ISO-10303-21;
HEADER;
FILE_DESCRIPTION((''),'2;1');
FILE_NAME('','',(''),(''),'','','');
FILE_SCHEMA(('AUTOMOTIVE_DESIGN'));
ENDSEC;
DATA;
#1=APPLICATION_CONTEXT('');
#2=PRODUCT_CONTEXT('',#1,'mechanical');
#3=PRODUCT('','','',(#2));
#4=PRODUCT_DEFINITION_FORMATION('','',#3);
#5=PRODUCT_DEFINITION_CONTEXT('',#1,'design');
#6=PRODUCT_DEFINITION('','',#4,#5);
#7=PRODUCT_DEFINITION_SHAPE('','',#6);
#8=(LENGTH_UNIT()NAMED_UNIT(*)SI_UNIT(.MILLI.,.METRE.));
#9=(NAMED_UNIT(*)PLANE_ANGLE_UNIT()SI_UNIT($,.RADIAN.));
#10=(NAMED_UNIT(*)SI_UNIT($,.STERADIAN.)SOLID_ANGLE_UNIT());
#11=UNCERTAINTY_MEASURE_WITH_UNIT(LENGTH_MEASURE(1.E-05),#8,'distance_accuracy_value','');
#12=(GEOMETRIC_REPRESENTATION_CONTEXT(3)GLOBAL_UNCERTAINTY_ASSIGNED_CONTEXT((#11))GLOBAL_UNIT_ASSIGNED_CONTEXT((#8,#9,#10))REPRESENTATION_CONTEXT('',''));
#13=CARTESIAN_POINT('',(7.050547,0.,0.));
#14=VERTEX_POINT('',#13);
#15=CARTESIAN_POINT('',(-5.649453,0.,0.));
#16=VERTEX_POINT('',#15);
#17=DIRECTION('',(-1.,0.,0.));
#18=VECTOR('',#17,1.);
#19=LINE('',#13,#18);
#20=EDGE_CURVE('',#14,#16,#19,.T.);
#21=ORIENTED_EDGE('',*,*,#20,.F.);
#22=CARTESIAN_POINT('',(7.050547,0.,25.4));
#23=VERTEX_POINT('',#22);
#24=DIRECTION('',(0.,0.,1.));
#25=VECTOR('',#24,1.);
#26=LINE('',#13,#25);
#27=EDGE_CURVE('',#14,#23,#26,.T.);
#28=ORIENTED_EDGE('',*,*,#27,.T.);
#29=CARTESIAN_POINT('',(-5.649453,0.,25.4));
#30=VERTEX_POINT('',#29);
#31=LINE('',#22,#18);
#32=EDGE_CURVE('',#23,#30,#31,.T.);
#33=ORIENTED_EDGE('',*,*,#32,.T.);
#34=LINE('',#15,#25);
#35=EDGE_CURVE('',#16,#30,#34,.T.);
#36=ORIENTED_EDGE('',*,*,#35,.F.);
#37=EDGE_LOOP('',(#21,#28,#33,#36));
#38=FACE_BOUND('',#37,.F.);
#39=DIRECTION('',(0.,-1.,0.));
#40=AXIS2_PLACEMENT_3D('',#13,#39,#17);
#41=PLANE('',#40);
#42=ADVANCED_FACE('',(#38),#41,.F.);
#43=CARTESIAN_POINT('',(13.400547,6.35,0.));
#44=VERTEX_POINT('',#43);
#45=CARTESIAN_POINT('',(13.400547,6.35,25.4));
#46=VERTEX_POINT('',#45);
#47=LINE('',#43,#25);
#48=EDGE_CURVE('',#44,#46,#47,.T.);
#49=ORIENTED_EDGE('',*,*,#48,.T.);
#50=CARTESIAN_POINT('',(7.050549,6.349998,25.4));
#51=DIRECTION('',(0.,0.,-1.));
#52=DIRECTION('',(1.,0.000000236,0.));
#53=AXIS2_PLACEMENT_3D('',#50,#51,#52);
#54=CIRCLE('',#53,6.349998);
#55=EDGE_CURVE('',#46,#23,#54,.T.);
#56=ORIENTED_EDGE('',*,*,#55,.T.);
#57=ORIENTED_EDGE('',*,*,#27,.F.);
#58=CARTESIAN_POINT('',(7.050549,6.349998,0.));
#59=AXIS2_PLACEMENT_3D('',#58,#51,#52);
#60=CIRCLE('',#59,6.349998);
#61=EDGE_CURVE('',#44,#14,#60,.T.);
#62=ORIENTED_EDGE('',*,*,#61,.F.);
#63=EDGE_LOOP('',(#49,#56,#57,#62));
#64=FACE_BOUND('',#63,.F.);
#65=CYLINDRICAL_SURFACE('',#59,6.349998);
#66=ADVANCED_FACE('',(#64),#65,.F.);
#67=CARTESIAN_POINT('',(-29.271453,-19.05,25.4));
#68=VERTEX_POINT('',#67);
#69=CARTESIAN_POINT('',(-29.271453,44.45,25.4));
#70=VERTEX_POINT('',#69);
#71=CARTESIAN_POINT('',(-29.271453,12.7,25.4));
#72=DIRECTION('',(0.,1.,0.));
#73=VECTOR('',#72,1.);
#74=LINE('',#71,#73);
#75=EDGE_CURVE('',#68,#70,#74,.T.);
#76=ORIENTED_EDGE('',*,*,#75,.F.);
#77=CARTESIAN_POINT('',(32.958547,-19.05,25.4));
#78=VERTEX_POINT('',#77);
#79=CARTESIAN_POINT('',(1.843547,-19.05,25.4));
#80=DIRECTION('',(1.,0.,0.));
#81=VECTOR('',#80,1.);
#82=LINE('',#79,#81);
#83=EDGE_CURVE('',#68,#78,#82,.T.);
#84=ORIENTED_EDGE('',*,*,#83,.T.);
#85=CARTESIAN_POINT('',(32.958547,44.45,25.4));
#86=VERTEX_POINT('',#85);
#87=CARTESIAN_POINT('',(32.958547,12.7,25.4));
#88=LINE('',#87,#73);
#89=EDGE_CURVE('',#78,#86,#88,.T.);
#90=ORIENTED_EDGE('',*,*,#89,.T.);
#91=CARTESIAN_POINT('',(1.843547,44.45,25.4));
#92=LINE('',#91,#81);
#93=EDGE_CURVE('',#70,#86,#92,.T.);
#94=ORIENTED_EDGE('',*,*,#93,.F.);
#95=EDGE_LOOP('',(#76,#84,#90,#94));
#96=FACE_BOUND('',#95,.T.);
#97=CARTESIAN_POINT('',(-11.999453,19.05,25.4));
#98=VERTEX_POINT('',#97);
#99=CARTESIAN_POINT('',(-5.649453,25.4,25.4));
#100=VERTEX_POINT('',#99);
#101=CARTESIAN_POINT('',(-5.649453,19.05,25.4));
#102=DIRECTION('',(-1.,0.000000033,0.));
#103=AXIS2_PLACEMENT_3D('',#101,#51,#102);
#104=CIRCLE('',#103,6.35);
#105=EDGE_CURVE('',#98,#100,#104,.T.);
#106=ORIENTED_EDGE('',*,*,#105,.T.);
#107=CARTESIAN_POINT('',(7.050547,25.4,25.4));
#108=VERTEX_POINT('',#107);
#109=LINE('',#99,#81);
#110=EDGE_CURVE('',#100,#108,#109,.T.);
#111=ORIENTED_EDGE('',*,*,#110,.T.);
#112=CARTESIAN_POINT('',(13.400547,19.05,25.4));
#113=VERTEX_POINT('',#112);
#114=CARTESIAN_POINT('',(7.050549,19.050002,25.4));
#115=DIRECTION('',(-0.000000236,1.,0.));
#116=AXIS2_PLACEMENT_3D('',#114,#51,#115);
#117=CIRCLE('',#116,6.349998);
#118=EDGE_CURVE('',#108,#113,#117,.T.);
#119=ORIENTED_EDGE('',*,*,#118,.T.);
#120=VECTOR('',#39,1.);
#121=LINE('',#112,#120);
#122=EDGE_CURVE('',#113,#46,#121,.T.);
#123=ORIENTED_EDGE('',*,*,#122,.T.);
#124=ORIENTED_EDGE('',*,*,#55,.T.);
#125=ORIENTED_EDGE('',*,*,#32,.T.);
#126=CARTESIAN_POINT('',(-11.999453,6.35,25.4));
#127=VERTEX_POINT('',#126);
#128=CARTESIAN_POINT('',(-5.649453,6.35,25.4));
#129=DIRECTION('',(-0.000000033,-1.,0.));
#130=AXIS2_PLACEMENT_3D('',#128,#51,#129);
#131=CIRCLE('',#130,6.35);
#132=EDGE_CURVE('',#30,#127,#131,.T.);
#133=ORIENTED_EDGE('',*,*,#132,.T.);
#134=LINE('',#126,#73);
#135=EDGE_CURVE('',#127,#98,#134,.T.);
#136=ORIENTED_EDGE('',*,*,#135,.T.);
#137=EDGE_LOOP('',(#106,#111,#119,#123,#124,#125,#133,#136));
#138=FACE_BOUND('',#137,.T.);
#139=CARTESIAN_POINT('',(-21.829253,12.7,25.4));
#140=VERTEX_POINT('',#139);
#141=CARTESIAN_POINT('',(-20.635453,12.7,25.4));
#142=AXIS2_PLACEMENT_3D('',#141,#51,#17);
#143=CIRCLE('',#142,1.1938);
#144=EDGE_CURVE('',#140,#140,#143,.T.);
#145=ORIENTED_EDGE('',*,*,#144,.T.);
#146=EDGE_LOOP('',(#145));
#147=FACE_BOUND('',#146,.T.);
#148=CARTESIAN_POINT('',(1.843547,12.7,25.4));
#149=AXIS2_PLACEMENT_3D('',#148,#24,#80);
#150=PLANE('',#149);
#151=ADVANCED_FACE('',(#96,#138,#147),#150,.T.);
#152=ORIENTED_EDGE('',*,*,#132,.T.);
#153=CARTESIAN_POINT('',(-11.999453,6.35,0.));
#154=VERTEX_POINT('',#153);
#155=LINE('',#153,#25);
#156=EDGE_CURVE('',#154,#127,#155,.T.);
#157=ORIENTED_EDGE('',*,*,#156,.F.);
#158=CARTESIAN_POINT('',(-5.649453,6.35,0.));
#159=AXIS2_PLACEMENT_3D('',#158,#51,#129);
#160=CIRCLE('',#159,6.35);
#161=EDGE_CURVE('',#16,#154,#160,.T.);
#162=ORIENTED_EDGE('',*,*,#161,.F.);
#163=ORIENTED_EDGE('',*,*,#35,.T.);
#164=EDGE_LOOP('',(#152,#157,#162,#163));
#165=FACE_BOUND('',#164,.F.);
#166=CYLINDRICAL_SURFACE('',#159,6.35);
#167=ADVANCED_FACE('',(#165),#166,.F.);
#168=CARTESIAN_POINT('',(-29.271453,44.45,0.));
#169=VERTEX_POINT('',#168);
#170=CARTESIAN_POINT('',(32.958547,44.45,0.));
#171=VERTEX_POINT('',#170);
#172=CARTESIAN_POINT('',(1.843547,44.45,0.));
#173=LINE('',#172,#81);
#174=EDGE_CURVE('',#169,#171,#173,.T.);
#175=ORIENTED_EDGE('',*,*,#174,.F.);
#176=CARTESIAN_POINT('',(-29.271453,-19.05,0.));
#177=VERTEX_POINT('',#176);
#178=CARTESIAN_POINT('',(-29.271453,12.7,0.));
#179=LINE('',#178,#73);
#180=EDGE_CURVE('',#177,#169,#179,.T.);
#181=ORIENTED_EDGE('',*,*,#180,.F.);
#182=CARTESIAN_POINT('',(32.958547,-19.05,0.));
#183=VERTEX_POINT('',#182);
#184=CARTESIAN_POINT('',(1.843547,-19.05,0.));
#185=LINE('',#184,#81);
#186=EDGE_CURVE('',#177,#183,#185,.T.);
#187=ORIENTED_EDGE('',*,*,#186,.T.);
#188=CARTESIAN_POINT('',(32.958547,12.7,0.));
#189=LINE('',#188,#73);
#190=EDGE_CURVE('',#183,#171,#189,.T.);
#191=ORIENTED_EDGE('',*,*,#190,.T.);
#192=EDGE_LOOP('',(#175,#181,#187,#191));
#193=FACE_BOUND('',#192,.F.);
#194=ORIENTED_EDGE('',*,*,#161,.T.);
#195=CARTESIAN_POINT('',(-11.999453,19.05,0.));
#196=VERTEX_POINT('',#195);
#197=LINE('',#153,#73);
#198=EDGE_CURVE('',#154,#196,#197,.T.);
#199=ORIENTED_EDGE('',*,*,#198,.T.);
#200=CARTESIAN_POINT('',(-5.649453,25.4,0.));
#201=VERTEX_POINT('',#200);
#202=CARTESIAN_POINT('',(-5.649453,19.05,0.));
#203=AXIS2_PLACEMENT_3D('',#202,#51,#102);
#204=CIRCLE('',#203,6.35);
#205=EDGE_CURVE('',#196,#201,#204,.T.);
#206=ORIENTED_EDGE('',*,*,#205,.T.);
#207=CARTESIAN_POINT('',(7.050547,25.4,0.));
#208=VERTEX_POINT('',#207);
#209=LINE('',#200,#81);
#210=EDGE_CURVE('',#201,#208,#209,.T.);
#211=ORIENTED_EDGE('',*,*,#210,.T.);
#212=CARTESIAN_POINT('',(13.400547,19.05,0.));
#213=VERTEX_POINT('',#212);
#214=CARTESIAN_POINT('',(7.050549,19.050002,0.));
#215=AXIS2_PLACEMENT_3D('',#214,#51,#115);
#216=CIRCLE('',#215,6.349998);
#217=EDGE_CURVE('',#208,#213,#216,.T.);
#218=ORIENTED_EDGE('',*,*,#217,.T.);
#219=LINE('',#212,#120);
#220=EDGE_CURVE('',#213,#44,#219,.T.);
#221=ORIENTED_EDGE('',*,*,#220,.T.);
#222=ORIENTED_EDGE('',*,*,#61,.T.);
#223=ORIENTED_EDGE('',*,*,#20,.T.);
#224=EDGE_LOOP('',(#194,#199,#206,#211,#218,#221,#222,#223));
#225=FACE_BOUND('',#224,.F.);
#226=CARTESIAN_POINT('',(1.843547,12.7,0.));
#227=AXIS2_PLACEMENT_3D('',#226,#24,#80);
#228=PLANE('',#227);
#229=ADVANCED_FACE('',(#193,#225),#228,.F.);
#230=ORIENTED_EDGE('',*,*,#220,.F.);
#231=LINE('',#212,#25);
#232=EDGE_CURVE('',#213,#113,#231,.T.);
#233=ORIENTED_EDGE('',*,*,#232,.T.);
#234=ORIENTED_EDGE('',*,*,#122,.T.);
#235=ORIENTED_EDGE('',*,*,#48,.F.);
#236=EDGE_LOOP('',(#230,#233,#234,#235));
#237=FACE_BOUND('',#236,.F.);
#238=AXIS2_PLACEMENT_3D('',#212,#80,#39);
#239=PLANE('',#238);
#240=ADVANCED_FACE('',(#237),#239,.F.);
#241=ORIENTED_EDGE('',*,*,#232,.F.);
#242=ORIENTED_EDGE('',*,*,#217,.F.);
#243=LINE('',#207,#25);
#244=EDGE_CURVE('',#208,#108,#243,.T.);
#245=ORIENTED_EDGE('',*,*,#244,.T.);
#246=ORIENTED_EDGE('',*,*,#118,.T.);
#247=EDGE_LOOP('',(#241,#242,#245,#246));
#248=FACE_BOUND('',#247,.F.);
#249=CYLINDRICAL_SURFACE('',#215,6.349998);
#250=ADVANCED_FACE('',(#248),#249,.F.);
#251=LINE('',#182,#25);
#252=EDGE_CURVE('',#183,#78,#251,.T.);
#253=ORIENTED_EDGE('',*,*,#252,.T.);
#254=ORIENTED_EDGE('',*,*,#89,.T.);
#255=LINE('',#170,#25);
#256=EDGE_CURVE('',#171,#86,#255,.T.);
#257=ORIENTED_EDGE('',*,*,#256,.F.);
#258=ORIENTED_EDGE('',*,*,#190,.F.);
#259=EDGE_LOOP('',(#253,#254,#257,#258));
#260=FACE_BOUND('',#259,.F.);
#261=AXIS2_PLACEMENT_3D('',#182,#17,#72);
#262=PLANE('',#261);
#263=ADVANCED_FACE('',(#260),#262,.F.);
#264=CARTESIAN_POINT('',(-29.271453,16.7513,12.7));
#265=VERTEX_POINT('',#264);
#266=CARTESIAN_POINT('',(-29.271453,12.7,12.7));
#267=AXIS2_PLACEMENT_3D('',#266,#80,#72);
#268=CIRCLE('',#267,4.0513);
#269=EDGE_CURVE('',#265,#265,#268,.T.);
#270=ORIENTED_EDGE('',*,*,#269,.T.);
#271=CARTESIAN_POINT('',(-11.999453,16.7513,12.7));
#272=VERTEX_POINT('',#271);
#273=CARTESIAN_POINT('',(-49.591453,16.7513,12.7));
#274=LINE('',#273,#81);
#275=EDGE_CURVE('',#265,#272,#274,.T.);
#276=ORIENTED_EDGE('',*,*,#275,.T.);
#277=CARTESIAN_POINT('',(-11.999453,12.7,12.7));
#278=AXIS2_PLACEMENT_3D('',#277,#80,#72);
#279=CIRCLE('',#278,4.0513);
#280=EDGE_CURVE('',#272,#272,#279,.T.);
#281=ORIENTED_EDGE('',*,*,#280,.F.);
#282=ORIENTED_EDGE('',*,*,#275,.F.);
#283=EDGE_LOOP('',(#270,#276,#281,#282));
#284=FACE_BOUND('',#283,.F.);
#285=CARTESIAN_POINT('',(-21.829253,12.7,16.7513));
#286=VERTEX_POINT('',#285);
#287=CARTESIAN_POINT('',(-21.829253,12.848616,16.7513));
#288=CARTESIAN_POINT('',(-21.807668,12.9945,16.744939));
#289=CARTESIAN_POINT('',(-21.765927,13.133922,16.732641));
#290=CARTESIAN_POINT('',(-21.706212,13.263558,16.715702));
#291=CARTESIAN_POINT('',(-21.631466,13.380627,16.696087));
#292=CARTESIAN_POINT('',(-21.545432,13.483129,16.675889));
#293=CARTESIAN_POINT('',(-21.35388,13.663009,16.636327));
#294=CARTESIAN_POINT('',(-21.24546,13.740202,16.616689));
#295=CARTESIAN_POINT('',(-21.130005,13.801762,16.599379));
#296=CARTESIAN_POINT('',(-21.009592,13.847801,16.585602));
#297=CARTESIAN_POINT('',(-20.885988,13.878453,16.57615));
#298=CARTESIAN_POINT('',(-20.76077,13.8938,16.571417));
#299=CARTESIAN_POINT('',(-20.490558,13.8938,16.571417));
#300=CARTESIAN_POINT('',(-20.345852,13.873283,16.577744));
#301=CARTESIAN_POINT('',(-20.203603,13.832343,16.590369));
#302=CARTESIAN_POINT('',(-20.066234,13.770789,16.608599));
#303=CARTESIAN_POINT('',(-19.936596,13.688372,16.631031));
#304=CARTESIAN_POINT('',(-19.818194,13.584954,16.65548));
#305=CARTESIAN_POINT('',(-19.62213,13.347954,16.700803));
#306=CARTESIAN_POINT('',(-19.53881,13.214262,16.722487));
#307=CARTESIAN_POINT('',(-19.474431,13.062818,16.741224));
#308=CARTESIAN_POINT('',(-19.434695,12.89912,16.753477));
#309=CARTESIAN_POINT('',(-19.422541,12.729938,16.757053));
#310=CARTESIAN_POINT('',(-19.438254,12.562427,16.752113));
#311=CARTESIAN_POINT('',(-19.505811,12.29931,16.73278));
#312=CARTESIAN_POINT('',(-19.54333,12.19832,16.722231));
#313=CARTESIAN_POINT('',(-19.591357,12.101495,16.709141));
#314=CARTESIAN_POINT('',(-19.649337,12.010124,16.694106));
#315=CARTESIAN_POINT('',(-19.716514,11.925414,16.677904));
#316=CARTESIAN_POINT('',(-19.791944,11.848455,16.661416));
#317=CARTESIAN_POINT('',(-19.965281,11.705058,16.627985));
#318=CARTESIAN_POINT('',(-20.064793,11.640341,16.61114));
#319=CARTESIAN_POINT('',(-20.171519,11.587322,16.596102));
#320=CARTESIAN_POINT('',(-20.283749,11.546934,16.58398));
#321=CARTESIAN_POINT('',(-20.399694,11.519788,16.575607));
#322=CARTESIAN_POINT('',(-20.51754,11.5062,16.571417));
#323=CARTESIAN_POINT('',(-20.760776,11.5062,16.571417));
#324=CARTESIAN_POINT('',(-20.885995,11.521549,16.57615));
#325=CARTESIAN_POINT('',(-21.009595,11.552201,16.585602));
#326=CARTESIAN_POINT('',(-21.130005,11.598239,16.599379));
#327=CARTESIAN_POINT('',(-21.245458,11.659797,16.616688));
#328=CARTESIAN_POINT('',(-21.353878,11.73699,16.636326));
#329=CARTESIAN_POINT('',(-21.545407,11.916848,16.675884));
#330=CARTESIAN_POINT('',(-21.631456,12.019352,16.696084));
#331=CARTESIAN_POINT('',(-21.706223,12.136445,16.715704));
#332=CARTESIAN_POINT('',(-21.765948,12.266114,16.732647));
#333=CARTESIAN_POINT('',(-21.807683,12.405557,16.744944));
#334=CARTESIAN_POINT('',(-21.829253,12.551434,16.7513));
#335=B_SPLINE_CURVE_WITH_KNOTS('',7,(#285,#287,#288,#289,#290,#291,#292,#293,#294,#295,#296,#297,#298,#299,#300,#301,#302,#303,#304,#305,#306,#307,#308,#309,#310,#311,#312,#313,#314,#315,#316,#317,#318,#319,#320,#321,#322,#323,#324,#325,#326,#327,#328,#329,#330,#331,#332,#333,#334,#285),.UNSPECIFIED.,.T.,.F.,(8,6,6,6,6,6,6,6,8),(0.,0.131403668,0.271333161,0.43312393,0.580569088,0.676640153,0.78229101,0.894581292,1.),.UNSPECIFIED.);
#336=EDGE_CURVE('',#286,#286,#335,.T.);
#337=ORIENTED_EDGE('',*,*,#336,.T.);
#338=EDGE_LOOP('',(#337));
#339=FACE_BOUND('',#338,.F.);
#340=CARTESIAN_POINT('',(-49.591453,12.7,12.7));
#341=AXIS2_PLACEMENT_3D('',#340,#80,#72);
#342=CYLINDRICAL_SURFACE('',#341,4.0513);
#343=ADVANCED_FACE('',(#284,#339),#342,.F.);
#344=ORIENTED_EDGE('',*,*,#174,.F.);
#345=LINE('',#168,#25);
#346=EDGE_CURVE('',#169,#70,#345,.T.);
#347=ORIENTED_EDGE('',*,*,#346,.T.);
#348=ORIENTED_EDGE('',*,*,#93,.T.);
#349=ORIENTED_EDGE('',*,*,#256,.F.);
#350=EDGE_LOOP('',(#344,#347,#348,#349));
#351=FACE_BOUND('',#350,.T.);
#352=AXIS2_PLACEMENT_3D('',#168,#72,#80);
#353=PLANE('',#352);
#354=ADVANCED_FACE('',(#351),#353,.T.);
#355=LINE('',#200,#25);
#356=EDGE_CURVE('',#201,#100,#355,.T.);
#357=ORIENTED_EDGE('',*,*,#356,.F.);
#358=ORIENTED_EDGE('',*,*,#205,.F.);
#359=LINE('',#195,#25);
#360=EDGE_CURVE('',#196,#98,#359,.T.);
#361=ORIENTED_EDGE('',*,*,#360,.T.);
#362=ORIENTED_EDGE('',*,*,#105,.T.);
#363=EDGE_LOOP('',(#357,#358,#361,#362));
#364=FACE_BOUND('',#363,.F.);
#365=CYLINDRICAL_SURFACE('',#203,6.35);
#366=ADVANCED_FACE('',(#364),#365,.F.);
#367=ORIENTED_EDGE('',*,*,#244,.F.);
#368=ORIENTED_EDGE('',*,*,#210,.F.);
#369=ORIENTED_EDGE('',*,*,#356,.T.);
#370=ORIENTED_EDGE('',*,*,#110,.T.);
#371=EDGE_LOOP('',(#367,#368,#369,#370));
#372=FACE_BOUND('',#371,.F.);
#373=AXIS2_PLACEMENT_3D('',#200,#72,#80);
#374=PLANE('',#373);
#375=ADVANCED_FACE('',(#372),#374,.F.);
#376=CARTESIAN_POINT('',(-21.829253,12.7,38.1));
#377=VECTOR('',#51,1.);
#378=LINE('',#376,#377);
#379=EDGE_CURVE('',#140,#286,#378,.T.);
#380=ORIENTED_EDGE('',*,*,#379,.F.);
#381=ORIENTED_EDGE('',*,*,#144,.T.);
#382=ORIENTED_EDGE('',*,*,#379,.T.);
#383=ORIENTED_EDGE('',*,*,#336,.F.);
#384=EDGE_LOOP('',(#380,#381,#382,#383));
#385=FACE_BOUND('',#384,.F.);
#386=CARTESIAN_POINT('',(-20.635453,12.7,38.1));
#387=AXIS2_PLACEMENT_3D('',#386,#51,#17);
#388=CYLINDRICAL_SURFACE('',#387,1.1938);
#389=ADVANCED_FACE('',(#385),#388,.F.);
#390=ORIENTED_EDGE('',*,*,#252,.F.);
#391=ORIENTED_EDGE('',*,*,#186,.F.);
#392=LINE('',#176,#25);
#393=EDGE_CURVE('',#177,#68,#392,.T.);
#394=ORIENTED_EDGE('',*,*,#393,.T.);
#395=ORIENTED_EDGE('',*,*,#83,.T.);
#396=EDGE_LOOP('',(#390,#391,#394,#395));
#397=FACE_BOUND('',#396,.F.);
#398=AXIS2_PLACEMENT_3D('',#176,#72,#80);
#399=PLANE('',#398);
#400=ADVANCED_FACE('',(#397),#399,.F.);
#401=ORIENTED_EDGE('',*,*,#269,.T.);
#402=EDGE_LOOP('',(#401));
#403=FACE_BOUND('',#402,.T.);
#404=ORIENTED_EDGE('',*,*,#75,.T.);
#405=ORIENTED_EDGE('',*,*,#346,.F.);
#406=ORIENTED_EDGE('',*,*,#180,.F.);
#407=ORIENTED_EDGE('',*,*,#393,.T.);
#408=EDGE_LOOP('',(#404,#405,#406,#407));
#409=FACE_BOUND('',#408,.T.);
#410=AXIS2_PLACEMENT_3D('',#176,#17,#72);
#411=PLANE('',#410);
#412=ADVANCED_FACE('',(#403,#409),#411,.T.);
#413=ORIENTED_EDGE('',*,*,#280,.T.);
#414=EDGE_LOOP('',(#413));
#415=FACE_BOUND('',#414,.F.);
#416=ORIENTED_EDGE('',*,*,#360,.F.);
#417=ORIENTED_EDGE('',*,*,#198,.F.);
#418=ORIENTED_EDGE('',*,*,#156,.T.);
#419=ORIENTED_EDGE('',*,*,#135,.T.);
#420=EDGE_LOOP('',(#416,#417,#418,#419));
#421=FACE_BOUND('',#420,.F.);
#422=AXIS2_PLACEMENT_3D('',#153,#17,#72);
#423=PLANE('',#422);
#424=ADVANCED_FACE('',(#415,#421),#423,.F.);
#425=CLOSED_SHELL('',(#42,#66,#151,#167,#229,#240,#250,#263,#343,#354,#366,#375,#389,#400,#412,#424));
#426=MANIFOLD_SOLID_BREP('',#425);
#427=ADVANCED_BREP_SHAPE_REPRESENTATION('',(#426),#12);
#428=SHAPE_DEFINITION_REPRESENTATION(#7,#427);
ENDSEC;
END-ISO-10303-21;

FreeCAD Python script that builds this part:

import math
import FreeCAD as App
import Part
import Sketcher
from FreeCAD import Vector
Q = App.Units.Quantity

doc = App.newDocument("Part")
body = doc.addObject("PartDesign::Body", "Body")

# Sketch on XY plane
sketch1 = body.newObject("Sketcher::SketchObject", "Sketch")
sketch1.AttachmentSupport = (doc.getObject("XY_Plane"), [""])
sketch1.MapMode = "FlatFace"
sketch1.addGeometry([
    Part.LineSegment(Vector(-29.271453, 44.45, 0), Vector(-29.271453, -19.05, 0)),  # 0
    Part.LineSegment(Vector(-29.271453, -19.05, 0), Vector(32.958547, -19.05, 0)),  # 1
    Part.LineSegment(Vector(32.958547, -19.05, 0), Vector(32.958547, 44.45, 0)),  # 2
    Part.LineSegment(Vector(32.958547, 44.45, 0), Vector(-29.271453, 44.45, 0)),  # 3
    Part.LineSegment(Vector(-11.999453, 6.35, 0), Vector(-11.999453, 19.05, 0)),  # 4
    Part.ArcOfCircle(Part.Circle(Vector(-5.649453, 19.05, 0), Vector(0, 0, 1), 6.35), math.radians(90.000002), math.radians(179.999998)),  # 5
    Part.LineSegment(Vector(-5.649453, 25.4, 0), Vector(7.050547, 25.4, 0)),  # 6
    Part.ArcOfCircle(Part.Circle(Vector(7.050548, 19.050002, 0), Vector(0, 0, 1), 6.349998), math.radians(-0.000014), math.radians(90.000014)),  # 7
    Part.LineSegment(Vector(13.400547, 19.05, 0), Vector(13.400547, 6.35, 0)),  # 8
    Part.ArcOfCircle(Part.Circle(Vector(7.050548, 6.349998, 0), Vector(0, 0, 1), 6.349998), math.radians(-90.000014), math.radians(0.000014)),  # 9
    Part.LineSegment(Vector(7.050547, 0, 0), Vector(-5.649453, 0, 0)),  # 10
    Part.ArcOfCircle(Part.Circle(Vector(-5.649453, 6.35, 0), Vector(0, 0, 1), 6.35), math.radians(-179.999998), math.radians(-90.000002)),  # 11
], False)
sketch1.addConstraint([
    Sketcher.Constraint("Coincident", 0, 2, 1, 1),
    Sketcher.Constraint("Coincident", 1, 2, 2, 1),
    Sketcher.Constraint("Coincident", 2, 2, 3, 1),
    Sketcher.Constraint("Coincident", 3, 2, 0, 1),
    Sketcher.Constraint("Tangent", 4, 2, 5, 2),
    Sketcher.Constraint("Tangent", 5, 1, 6, 1),
    Sketcher.Constraint("Tangent", 6, 2, 7, 2),
    Sketcher.Constraint("Tangent", 7, 1, 8, 1),
    Sketcher.Constraint("Tangent", 8, 2, 9, 2),
    Sketcher.Constraint("Tangent", 9, 1, 10, 1),
    Sketcher.Constraint("Tangent", 10, 2, 11, 2),
    Sketcher.Constraint("Tangent", 11, 1, 4, 1),
    Sketcher.Constraint("Vertical", 0),
    Sketcher.Constraint("Horizontal", 1),
    Sketcher.Constraint("Vertical", 2),
    Sketcher.Constraint("Horizontal", 3),
    Sketcher.Constraint("Vertical", 4),
    Sketcher.Constraint("Horizontal", 6),
    Sketcher.Constraint("Vertical", 8),
    Sketcher.Constraint("Horizontal", 10),
    Sketcher.Constraint("Equal", 5, 7),
    Sketcher.Constraint("Equal", 7, 9),
    Sketcher.Constraint("Equal", 9, 11),
    Sketcher.Constraint("PointOnObject", 9, 1, -1),
    Sketcher.Constraint("Equal", 10, 4),
    Sketcher.Constraint("Radius", 5, Q("0.25 in")),
    Sketcher.Constraint("DistanceX", 6, 1, 6, 2, Q("0.5 in")),
    Sketcher.Constraint("DistanceY", 0, 2, 0, 1, Q("2.5 in")),
    Sketcher.Constraint("DistanceY", 0, 2, 11, 3, Q("1 in")),
    Sketcher.Constraint("DistanceX", 1, 1, 1, 2, Q("2.45 in")),
    Sketcher.Constraint("DistanceX", 0, 2, 11, 3, Q("0.93 in")),
    Sketcher.Constraint("DistanceX", -1, 1, 7, 3, 7.050548),
])
pad1 = body.newObject("PartDesign::Pad", "Pad")
pad1.Profile = sketch1
pad1.Length = Q("1 in")

# Sketch on YZ plane
sketch2 = body.newObject("Sketcher::SketchObject", "Sketch001")
sketch2.AttachmentSupport = (doc.getObject("YZ_Plane"), [""])
sketch2.MapMode = "FlatFace"
sketch2.AttachmentOffset = App.Placement(Vector(0, 0, -29.271453), App.Rotation())
sketch2.addGeometry(Part.Circle(Vector(12.7, 12.7, 0), Vector(0, 0, 1), 4.0513), False)
sketch2.addConstraint([
    Sketcher.Constraint("Diameter", 0, Q("0.319 in")),
    Sketcher.Constraint("DistanceX", -1, 1, 0, 3, Q("0.5 in")),
    Sketcher.Constraint("DistanceY", -1, 1, 0, 3, Q("0.5 in")),
])
doc.recompute()
hole = body.newObject("PartDesign::Hole", "Hole")
hole.Profile = sketch2
hole.ThreadType = "None"
hole.Diameter = Q("0.319 in")
hole.DepthType = "Dimension"
hole.Depth = Q("0.8 in")
hole.DrillPoint = "Flat"
hole.Reversed = True

# Sketch on XY plane
sketch3 = body.newObject("Sketcher::SketchObject", "Sketch002")
sketch3.AttachmentSupport = (doc.getObject("XY_Plane"), [""])
sketch3.MapMode = "FlatFace"
sketch3.AttachmentOffset = App.Placement(Vector(0, 0, 1 * 25.4), App.Rotation())
sketch3.addGeometry(Part.Circle(Vector(-20.635453, 12.7, 0), Vector(0, 0, 1), 1.1938), False)
sketch3.addConstraint([
    Sketcher.Constraint("Diameter", 0, Q("0.094 in")),
    Sketcher.Constraint("DistanceY", -1, 1, 0, 3, Q("0.5 in")),
    Sketcher.Constraint("DistanceX", 0, 3, -1, 1, 20.635453),
])
doc.recompute()
hole2 = body.newObject("PartDesign::Hole", "Hole001")
hole2.Profile = sketch3
hole2.ThreadType = "None"
hole2.Diameter = Q("0.094 in")
hole2.DepthType = "Dimension"
hole2.Depth = Q("0.5 in")
hole2.DrillPoint = "Flat"

doc.recompute()
